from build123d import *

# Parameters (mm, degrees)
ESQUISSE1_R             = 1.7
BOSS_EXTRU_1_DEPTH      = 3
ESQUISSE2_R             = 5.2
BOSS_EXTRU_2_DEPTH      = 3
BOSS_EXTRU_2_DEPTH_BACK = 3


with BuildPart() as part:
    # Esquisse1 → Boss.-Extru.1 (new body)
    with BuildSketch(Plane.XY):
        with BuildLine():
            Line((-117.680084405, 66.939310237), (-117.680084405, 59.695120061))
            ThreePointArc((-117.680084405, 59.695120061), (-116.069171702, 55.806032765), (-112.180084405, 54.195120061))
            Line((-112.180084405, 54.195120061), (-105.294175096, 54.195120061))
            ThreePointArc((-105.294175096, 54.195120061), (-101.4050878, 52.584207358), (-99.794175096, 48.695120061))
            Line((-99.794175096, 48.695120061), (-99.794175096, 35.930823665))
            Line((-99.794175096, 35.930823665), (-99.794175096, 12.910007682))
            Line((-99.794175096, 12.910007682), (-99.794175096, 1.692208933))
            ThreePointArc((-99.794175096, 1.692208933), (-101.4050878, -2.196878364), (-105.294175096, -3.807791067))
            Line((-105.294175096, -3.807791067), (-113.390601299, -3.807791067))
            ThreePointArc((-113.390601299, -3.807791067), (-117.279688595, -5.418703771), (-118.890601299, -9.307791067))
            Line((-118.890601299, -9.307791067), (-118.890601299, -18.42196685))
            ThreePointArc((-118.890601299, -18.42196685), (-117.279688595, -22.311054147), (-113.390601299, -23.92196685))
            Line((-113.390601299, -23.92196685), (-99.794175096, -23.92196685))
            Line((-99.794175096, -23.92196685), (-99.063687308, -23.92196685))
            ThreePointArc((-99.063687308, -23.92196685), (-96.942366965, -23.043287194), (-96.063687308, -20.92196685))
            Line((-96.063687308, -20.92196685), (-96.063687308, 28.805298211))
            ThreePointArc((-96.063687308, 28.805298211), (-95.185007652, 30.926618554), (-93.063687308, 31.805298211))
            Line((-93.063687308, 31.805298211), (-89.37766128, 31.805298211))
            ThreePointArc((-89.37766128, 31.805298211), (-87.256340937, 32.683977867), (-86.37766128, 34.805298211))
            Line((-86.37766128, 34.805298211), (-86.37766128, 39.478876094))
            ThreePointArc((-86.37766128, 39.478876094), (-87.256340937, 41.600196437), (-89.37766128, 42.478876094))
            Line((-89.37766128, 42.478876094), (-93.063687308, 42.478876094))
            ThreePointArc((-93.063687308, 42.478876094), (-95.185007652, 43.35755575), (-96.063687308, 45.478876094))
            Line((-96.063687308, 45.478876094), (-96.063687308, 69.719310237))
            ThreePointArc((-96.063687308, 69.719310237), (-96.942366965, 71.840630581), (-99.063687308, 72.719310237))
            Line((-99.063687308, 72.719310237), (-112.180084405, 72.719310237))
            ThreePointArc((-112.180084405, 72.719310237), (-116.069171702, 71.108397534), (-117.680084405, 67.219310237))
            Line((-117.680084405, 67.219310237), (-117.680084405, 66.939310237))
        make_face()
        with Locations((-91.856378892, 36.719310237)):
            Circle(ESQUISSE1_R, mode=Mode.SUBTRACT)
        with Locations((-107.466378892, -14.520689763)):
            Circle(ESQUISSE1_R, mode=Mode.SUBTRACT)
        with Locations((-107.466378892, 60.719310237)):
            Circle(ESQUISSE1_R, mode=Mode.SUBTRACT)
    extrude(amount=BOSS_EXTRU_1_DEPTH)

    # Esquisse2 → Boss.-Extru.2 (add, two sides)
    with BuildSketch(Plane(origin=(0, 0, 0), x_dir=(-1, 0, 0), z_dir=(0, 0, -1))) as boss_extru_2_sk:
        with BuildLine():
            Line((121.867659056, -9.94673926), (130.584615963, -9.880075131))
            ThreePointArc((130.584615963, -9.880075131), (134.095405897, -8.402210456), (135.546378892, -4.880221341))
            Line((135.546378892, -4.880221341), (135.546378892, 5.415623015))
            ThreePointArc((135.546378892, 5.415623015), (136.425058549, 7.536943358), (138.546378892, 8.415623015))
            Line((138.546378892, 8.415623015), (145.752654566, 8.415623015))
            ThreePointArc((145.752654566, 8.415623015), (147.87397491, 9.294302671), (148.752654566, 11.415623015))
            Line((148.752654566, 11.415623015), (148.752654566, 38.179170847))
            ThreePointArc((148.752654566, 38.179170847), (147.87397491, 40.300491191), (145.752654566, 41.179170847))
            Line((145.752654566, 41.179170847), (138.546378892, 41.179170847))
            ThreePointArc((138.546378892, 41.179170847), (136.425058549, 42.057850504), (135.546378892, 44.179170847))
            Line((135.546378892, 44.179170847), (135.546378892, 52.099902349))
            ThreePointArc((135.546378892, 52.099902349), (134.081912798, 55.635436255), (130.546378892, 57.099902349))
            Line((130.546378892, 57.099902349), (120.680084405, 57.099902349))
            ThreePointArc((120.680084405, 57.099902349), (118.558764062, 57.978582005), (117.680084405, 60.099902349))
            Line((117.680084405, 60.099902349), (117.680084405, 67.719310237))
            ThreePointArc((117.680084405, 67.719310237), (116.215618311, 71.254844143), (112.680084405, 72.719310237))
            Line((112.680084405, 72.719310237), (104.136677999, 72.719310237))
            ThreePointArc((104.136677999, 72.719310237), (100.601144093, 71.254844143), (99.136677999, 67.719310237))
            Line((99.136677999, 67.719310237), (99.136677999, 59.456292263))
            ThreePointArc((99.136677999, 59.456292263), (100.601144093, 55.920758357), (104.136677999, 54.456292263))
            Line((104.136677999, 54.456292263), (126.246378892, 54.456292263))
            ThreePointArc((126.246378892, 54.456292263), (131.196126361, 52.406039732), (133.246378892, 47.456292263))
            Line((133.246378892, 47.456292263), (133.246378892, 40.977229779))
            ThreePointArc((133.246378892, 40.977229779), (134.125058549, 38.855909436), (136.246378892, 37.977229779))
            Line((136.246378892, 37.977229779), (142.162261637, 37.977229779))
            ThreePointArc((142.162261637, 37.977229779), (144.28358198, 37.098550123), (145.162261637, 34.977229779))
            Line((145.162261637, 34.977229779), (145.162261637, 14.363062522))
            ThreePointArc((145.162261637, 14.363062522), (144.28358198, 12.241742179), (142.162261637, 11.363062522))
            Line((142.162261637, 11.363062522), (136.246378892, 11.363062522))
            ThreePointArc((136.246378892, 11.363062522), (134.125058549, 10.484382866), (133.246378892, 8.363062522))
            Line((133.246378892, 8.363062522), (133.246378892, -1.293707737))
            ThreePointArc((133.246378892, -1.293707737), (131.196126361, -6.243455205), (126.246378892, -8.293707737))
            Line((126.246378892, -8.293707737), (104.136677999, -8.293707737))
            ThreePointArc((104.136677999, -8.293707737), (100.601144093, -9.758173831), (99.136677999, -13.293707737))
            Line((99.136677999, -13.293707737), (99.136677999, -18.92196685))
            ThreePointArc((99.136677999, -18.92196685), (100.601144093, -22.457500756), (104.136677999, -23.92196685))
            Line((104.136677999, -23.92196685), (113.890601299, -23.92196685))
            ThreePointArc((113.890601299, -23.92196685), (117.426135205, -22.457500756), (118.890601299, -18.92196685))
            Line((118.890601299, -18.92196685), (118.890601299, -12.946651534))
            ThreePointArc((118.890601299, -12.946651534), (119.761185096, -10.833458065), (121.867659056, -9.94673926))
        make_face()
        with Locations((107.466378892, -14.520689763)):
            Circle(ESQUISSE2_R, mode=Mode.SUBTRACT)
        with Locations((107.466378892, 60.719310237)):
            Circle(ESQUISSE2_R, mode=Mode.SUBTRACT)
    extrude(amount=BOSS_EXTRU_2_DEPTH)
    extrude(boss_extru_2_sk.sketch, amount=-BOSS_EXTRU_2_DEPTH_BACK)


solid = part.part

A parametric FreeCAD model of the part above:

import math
import FreeCAD as App
import Part
import Sketcher

doc = App.newDocument("Part")
body = doc.addObject("PartDesign::Body", "Body")

# Sketch on XY plane
sketch1 = doc.addObject("Sketcher::SketchObject", "Sketch")
body.addObject(sketch1)
sketch1.AttachmentSupport = (doc.XY_Plane, [""])
sketch1.MapMode = "FlatFace"
sketch1.addGeometry([
    Part.ArcOfCircle(Part.Circle(App.Vector(-112.2, 59.7, 0), App.Vector(0, 0, 1), 5.5), math.radians(180), math.radians(270)),  # 0
    Part.LineSegment(App.Vector(-112.2, 54.2, 0), App.Vector(-105.3, 54.2, 0)),  # 1
    Part.ArcOfCircle(Part.Circle(App.Vector(-105.3, 48.7, 0), App.Vector(0, 0, 1), 5.5), math.radians(0), math.radians(90)),  # 2
    Part.LineSegment(App.Vector(-99.8, 48.7, 0), App.Vector(-99.8, 1.7, 0)),  # 3
    Part.ArcOfCircle(Part.Circle(App.Vector(-105.3, 1.7, 0), App.Vector(0, 0, 1), 5.5), math.radians(-90), math.radians(0)),  # 4
    Part.LineSegment(App.Vector(-105.3, -3.8, 0), App.Vector(-113.4, -3.8, 0)),  # 5
    Part.ArcOfCircle(Part.Circle(App.Vector(-113.4, -9.3, 0), App.Vector(0, 0, 1), 5.5), math.radians(90), math.radians(180)),  # 6
    Part.LineSegment(App.Vector(-118.9, -9.3, 0), App.Vector(-118.9, -18.4, 0)),  # 7
    Part.ArcOfCircle(Part.Circle(App.Vector(-113.4, -18.4, 0), App.Vector(0, 0, 1), 5.5), math.radians(180), math.radians(270)),  # 8
    Part.LineSegment(App.Vector(-113.4, -23.9, 0), App.Vector(-99.1, -23.9, 0)),  # 9
    Part.ArcOfCircle(Part.Circle(App.Vector(-99.1, -20.9, 0), App.Vector(0, 0, 1), 3), math.radians(-90), math.radians(0)),  # 10
    Part.LineSegment(App.Vector(-96.1, -20.9, 0), App.Vector(-96.1, 28.8, 0)),  # 11
    Part.ArcOfCircle(Part.Circle(App.Vector(-93.1, 28.8, 0), App.Vector(0, 0, 1), 3), math.radians(90), math.radians(180)),  # 12
    Part.LineSegment(App.Vector(-93.1, 31.8, 0), App.Vector(-89.4, 31.8, 0)),  # 13
    Part.ArcOfCircle(Part.Circle(App.Vector(-89.4, 34.8, 0), App.Vector(0, 0, 1), 3), math.radians(-90), math.radians(0)),  # 14
    Part.LineSegment(App.Vector(-86.4, 34.8, 0), App.Vector(-86.4, 39.5, 0)),  # 15
    Part.ArcOfCircle(Part.Circle(App.Vector(-89.4, 39.5, 0), App.Vector(0, 0, 1), 3), math.radians(0), math.radians(90)),  # 16
    Part.LineSegment(App.Vector(-89.4, 42.5, 0), App.Vector(-93.1, 42.5, 0)),  # 17
    Part.ArcOfCircle(Part.Circle(App.Vector(-93.1, 45.5, 0), App.Vector(0, 0, 1), 3), math.radians(180), math.radians(270)),  # 18
    Part.LineSegment(App.Vector(-96.1, 45.5, 0), App.Vector(-96.1, 69.7, 0)),  # 19
    Part.ArcOfCircle(Part.Circle(App.Vector(-99.1, 69.7, 0), App.Vector(0, 0, 1), 3), math.radians(0), math.radians(90)),  # 20
    Part.LineSegment(App.Vector(-99.1, 72.7, 0), App.Vector(-112.2, 72.7, 0)),  # 21
    Part.ArcOfCircle(Part.Circle(App.Vector(-112.2, 67.2, 0), App.Vector(0, 0, 1), 5.5), math.radians(90), math.radians(180)),  # 22
    Part.LineSegment(App.Vector(-117.7, 67.2, 0), App.Vector(-117.7, 59.7, 0)),  # 23
    Part.Circle(App.Vector(-107.5, -14.5, 0), App.Vector(0, 0, 1), 1.7),  # 24
    Part.Circle(App.Vector(-107.5, 60.7, 0), App.Vector(0, 0, 1), 1.7),  # 25
    Part.Circle(App.Vector(-91.9, 36.7, 0), App.Vector(0, 0, 1), 1.7),  # 26
], False)
sketch1.addConstraint([
    Sketcher.Constraint("Tangent", 0, 2, 1, 1),
    Sketcher.Constraint("Tangent", 1, 2, 2, 2),
    Sketcher.Constraint("Tangent", 2, 1, 3, 1),
    Sketcher.Constraint("Tangent", 3, 2, 4, 2),
    Sketcher.Constraint("Tangent", 4, 1, 5, 1),
    Sketcher.Constraint("Tangent", 5, 2, 6, 1),
    Sketcher.Constraint("Tangent", 6, 2, 7, 1),
    Sketcher.Constraint("Tangent", 7, 2, 8, 1),
    Sketcher.Constraint("Tangent", 8, 2, 9, 1),
    Sketcher.Constraint("Tangent", 9, 2, 10, 1),
    Sketcher.Constraint("Tangent", 10, 2, 11, 1),
    Sketcher.Constraint("Tangent", 11, 2, 12, 2),
    Sketcher.Constraint("Tangent", 12, 1, 13, 1),
    Sketcher.Constraint("Tangent", 13, 2, 14, 1),
    Sketcher.Constraint("Tangent", 14, 2, 15, 1),
    Sketcher.Constraint("Tangent", 15, 2, 16, 1),
    Sketcher.Constraint("Tangent", 16, 2, 17, 1),
    Sketcher.Constraint("Tangent", 17, 2, 18, 2),
    Sketcher.Constraint("Tangent", 18, 1, 19, 1),
    Sketcher.Constraint("Tangent", 19, 2, 20, 1),
    Sketcher.Constraint("Tangent", 20, 2, 21, 1),
    Sketcher.Constraint("Tangent", 21, 2, 22, 1),
    Sketcher.Constraint("Tangent", 22, 2, 23, 1),
    Sketcher.Constraint("Tangent", 23, 2, 0, 1),
    Sketcher.Constraint("Horizontal", 1),
    Sketcher.Constraint("Vertical", 3),
    Sketcher.Constraint("Horizontal", 5),
    Sketcher.Constraint("Vertical", 7),
    Sketcher.Constraint("Horizontal", 9),
    Sketcher.Constraint("Vertical", 11),
    Sketcher.Constraint("Horizontal", 13),
    Sketcher.Constraint("Vertical", 15),
    Sketcher.Constraint("Horizontal", 17),
    Sketcher.Constraint("Vertical", 19),
    Sketcher.Constraint("Horizontal", 21),
    Sketcher.Constraint("Vertical", 23),
    Sketcher.Constraint("Equal", 0, 2),
    Sketcher.Constraint("Equal", 2, 4),
    Sketcher.Constraint("Equal", 4, 6),
    Sketcher.Constraint("Equal", 6, 8),
    Sketcher.Constraint("Equal", 10, 12),
    Sketcher.Constraint("Equal", 12, 14),
    Sketcher.Constraint("Equal", 14, 16),
    Sketcher.Constraint("Equal", 16, 18),
    Sketcher.Constraint("Equal", 18, 20),
    Sketcher.Constraint("Equal", 8, 22),
    Sketcher.Constraint("Equal", 24, 25),
    Sketcher.Constraint("Equal", 25, 26),
    Sketcher.Constraint("Vertical", 12, 3, 18, 3),
    Sketcher.Constraint("Vertical", 24, 3, 25, 3),
    Sketcher.Constraint("Radius", 10, 3.0),
    Sketcher.Constraint("Diameter", 24, 3.4),
    Sketcher.Constraint("Radius", 0, 5.5),
    Sketcher.Constraint("DistanceY", 25, 3, 20, 3, 9.0),
    Sketcher.Constraint("DistanceX", 1, 1, 1, 2, 6.885909),
    Sketcher.Constraint("DistanceY", 3, 2, 3, 1, 47.002911),
    Sketcher.Constraint("DistanceY", 23, 2, 23, 1, 7.52419),
    Sketcher.Constraint("DistanceX", 6, 3, -1, 1, 113.390601),
    Sketcher.Constraint("DistanceY", -1, 1, 12, 3, 28.805298),
    Sketcher.Constraint("DistanceY", 24, 3, 6, 3, 5.212899),
    Sketcher.Constraint("DistanceX", 5, 2, 5, 1, 8.096426),
    Sketcher.Constraint("DistanceX", 9, 1, 9, 2, 14.326914),
    Sketcher.Constraint("DistanceX", 13, 1, 13, 2, 3.686026),
    Sketcher.Constraint("DistanceY", 7, 2, 7, 1, 9.114176),
    Sketcher.Constraint("DistanceY", 11, 1, 11, 2, 49.727265),
    Sketcher.Constraint("DistanceY", 15, 1, 15, 2, 4.673578),
    Sketcher.Constraint("DistanceX", 24, 3, -1, 1, 107.466379),
    Sketcher.Constraint("DistanceX", 26, 3, -1, 1, 91.856379),
    Sketcher.Constraint("DistanceY", -1, 1, 26, 3, 36.71931),
])
pad1 = doc.addObject("PartDesign::Pad", "Pad")
body.addObject(pad1)
pad1.Profile = sketch1
pad1.Length = 3

# Sketch on XY plane
sketch2 = doc.addObject("Sketcher::SketchObject", "Sketch001")
body.addObject(sketch2)
sketch2.AttachmentSupport = (doc.XY_Plane, [""])
sketch2.MapMode = "FlatFace"
sketch2.addGeometry([
    Part.LineSegment(App.Vector(-121.9, -9.9, 0), App.Vector(-130.6, -9.9, 0)),  # 0
    Part.ArcOfCircle(Part.Circle(App.Vector(-130.5, -4.9, 0), App.Vector(0, 0, 1), 5), math.radians(180), math.radians(270)),  # 1
    Part.LineSegment(App.Vector(-135.5, -4.9, 0), App.Vector(-135.5, 5.4, 0)),  # 2
    Part.ArcOfCircle(Part.Circle(App.Vector(-138.5, 5.4, 0), App.Vector(0, 0, 1), 3), math.radians(0), math.radians(90)),  # 3
    Part.LineSegment(App.Vector(-138.5, 8.4, 0), App.Vector(-145.8, 8.4, 0)),  # 4
    Part.ArcOfCircle(Part.Circle(App.Vector(-145.8, 11.4, 0), App.Vector(0, 0, 1), 3), math.radians(180), math.radians(270)),  # 5
    Part.LineSegment(App.Vector(-148.8, 11.4, 0), App.Vector(-148.8, 38.2, 0)),  # 6
    Part.ArcOfCircle(Part.Circle(App.Vector(-145.8, 38.2, 0), App.Vector(0, 0, 1), 3), math.radians(90), math.radians(180)),  # 7
    Part.LineSegment(App.Vector(-145.8, 41.2, 0), App.Vector(-138.5, 41.2, 0)),  # 8
    Part.ArcOfCircle(Part.Circle(App.Vector(-138.5, 44.2, 0), App.Vector(0, 0, 1), 3), math.radians(-90), math.radians(0)),  # 9
    Part.LineSegment(App.Vector(-135.5, 44.2, 0), App.Vector(-135.5, 52.1, 0)),  # 10
    Part.ArcOfCircle(Part.Circle(App.Vector(-130.5, 52.1, 0), App.Vector(0, 0, 1), 5), math.radians(90), math.radians(180)),  # 11
    Part.LineSegment(App.Vector(-130.5, 57.1, 0), App.Vector(-120.7, 57.1, 0)),  # 12
    Part.ArcOfCircle(Part.Circle(App.Vector(-120.7, 60.1, 0), App.Vector(0, 0, 1), 3), math.radians(-90), math.radians(0)),  # 13
    Part.LineSegment(App.Vector(-117.7, 60.1, 0), App.Vector(-117.7, 67.7, 0)),  # 14
    Part.ArcOfCircle(Part.Circle(App.Vector(-112.7, 67.7, 0), App.Vector(0, 0, 1), 5), math.radians(90), math.radians(180)),  # 15
    Part.LineSegment(App.Vector(-112.7, 72.7, 0), App.Vector(-104.1, 72.7, 0)),  # 16
    Part.ArcOfCircle(Part.Circle(App.Vector(-104.1, 67.7, 0), App.Vector(0, 0, 1), 5), math.radians(0), math.radians(90)),  # 17
    Part.LineSegment(App.Vector(-99.1, 67.7, 0), App.Vector(-99.1, 59.5, 0)),  # 18
    Part.ArcOfCircle(Part.Circle(App.Vector(-104.1, 59.5, 0), App.Vector(0, 0, 1), 5), math.radians(-90), math.radians(0)),  # 19
    Part.LineSegment(App.Vector(-104.1, 54.5, 0), App.Vector(-126.2, 54.5, 0)),  # 20
    Part.ArcOfCircle(Part.Circle(App.Vector(-126.2, 47.5, 0), App.Vector(0, 0, 1), 7), math.radians(90), math.radians(180)),  # 21
    Part.LineSegment(App.Vector(-133.2, 47.5, 0), App.Vector(-133.2, 41, 0)),  # 22
    Part.ArcOfCircle(Part.Circle(App.Vector(-136.2, 41, 0), App.Vector(0, 0, 1), 3), math.radians(-90), math.radians(0)),  # 23
    Part.LineSegment(App.Vector(-136.2, 38, 0), App.Vector(-142.2, 38, 0)),  # 24
    Part.ArcOfCircle(Part.Circle(App.Vector(-142.2, 35, 0), App.Vector(0, 0, 1), 3), math.radians(90), math.radians(180)),  # 25
    Part.LineSegment(App.Vector(-145.2, 35, 0), App.Vector(-145.2, 14.4, 0)),  # 26
    Part.ArcOfCircle(Part.Circle(App.Vector(-142.2, 14.4, 0), App.Vector(0, 0, 1), 3), math.radians(-180), math.radians(-90)),  # 27
    Part.LineSegment(App.Vector(-142.2, 11.4, 0), App.Vector(-136.2, 11.4, 0)),  # 28
    Part.ArcOfCircle(Part.Circle(App.Vector(-136.2, 8.4, 0), App.Vector(0, 0, 1), 3), math.radians(0), math.radians(90)),  # 29
    Part.LineSegment(App.Vector(-133.2, 8.4, 0), App.Vector(-133.2, -1.3, 0)),  # 30
    Part.ArcOfCircle(Part.Circle(App.Vector(-126.2, -1.3, 0), App.Vector(0, 0, 1), 7), math.radians(180), math.radians(270)),  # 31
    Part.LineSegment(App.Vector(-126.2, -8.3, 0), App.Vector(-104.1, -8.3, 0)),  # 32
    Part.ArcOfCircle(Part.Circle(App.Vector(-104.1, -13.3, 0), App.Vector(0, 0, 1), 5), math.radians(0), math.radians(90)),  # 33
    Part.LineSegment(App.Vector(-99.1, -13.3, 0), App.Vector(-99.1, -18.9, 0)),  # 34
    Part.ArcOfCircle(Part.Circle(App.Vector(-104.1, -18.9, 0), App.Vector(0, 0, 1), 5), math.radians(-90), math.radians(0)),  # 35
    Part.LineSegment(App.Vector(-104.1, -23.9, 0), App.Vector(-113.9, -23.9, 0)),  # 36
    Part.ArcOfCircle(Part.Circle(App.Vector(-113.9, -18.9, 0), App.Vector(0, 0, 1), 5), math.radians(180), math.radians(270)),  # 37
    Part.LineSegment(App.Vector(-118.9, -18.9, 0), App.Vector(-118.9, -12.9, 0)),  # 38
    Part.ArcOfCircle(Part.Circle(App.Vector(-121.9, -12.9, 0), App.Vector(0, 0, 1), 3), math.radians(0), math.radians(90)),  # 39
    Part.Circle(App.Vector(-107.5, -14.5, 0), App.Vector(0, 0, 1), 5.2),  # 40
    Part.Circle(App.Vector(-107.5, 60.7, 0), App.Vector(0, 0, 1), 5.2),  # 41
], False)
sketch2.addConstraint([
    Sketcher.Constraint("Tangent", 0, 2, 1, 2),
    Sketcher.Constraint("Tangent", 1, 1, 2, 1),
    Sketcher.Constraint("Tangent", 2, 2, 3, 1),
    Sketcher.Constraint("Tangent", 3, 2, 4, 1),
    Sketcher.Constraint("Tangent", 4, 2, 5, 2),
    Sketcher.Constraint("Tangent", 5, 1, 6, 1),
    Sketcher.Constraint("Tangent", 6, 2, 7, 2),
    Sketcher.Constraint("Tangent", 7, 1, 8, 1),
    Sketcher.Constraint("Tangent", 8, 2, 9, 1),
    Sketcher.Constraint("Tangent", 9, 2, 10, 1),
    Sketcher.Constraint("Tangent", 10, 2, 11, 2),
    Sketcher.Constraint("Tangent", 11, 1, 12, 1),
    Sketcher.Constraint("Tangent", 12, 2, 13, 1),
    Sketcher.Constraint("Tangent", 13, 2, 14, 1),
    Sketcher.Constraint("Tangent", 14, 2, 15, 2),
    Sketcher.Constraint("Tangent", 15, 1, 16, 1),
    Sketcher.Constraint("Tangent", 16, 2, 17, 2),
    Sketcher.Constraint("Tangent", 17, 1, 18, 1),
    Sketcher.Constraint("Tangent", 18, 2, 19, 2),
    Sketcher.Constraint("Tangent", 19, 1, 20, 1),
    Sketcher.Constraint("Tangent", 20, 2, 21, 1),
    Sketcher.Constraint("Tangent", 21, 2, 22, 1),
    Sketcher.Constraint("Tangent", 22, 2, 23, 2),
    Sketcher.Constraint("Tangent", 23, 1, 24, 1),
    Sketcher.Constraint("Tangent", 24, 2, 25, 1),
    Sketcher.Constraint("Tangent", 25, 2, 26, 1),
    Sketcher.Constraint("Tangent", 26, 2, 27, 1),
    Sketcher.Constraint("Tangent", 27, 2, 28, 1),
    Sketcher.Constraint("Tangent", 28, 2, 29, 2),
    Sketcher.Constraint("Tangent", 29, 1, 30, 1),
    Sketcher.Constraint("Tangent", 30, 2, 31, 1),
    Sketcher.Constraint("Tangent", 31, 2, 32, 1),
    Sketcher.Constraint("Tangent", 32, 2, 33, 2),
    Sketcher.Constraint("Tangent", 33, 1, 34, 1),
    Sketcher.Constraint("Tangent", 34, 2, 35, 2),
    Sketcher.Constraint("Tangent", 35, 1, 36, 1),
    Sketcher.Constraint("Tangent", 36, 2, 37, 2),
    Sketcher.Constraint("Tangent", 37, 1, 38, 1),
    Sketcher.Constraint("Tangent", 38, 2, 39, 1),
    Sketcher.Constraint("Tangent", 39, 2, 0, 1),
    Sketcher.Constraint("Vertical", 2),
    Sketcher.Constraint("Horizontal", 4),
    Sketcher.Constraint("Vertical", 6),
    Sketcher.Constraint("Horizontal", 8),
    Sketcher.Constraint("Vertical", 10),
    Sketcher.Constraint("Horizontal", 12),
    Sketcher.Constraint("Vertical", 14),
    Sketcher.Constraint("Horizontal", 16),
    Sketcher.Constraint("Vertical", 18),
    Sketcher.Constraint("Horizontal", 20),
    Sketcher.Constraint("Vertical", 22),
    Sketcher.Constraint("Horizontal", 24),
    Sketcher.Constraint("Vertical", 26),
    Sketcher.Constraint("Horizontal", 28),
    Sketcher.Constraint("Vertical", 30),
    Sketcher.Constraint("Horizontal", 32),
    Sketcher.Constraint("Vertical", 34),
    Sketcher.Constraint("Horizontal", 36),
    Sketcher.Constraint("Vertical", 38),
    Sketcher.Constraint("Equal", 3, 5),
    Sketcher.Constraint("Equal", 5, 7),
    Sketcher.Constraint("Equal", 7, 9),
    Sketcher.Constraint("Equal", 1, 11),
    Sketcher.Constraint("Equal", 9, 13),
    Sketcher.Constraint("Equal", 11, 15),
    Sketcher.Constraint("Equal", 15, 17),
    Sketcher.Constraint("Equal", 17, 19),
    Sketcher.Constraint("Equal", 13, 23),
    Sketcher.Constraint("Equal", 23, 25),
    Sketcher.Constraint("Equal", 25, 27),
    Sketcher.Constraint("Equal", 27, 29),
    Sketcher.Constraint("Equal", 21, 31),
    Sketcher.Constraint("Equal", 19, 33),
    Sketcher.Constraint("Equal", 33, 35),
    Sketcher.Constraint("Equal", 35, 37),
    Sketcher.Constraint("Equal", 29, 39),
    Sketcher.Constraint("Equal", 40, 41),
    Sketcher.Constraint("Vertical", 3, 3, 9, 3),
    Sketcher.Constraint("Vertical", 23, 3, 29, 3),
    Sketcher.Constraint("Vertical", 19, 3, 33, 3),
    Sketcher.Constraint("Vertical", 40, 3, 41, 3),
    Sketcher.Constraint("Radius", 1, 5.0),
    Sketcher.Constraint("Radius", 3, 3.0),
    Sketcher.Constraint("Radius", 21, 7.0),
    Sketcher.Constraint("Diameter", 40, 10.4),
    Sketcher.Constraint("DistanceX", 20, 2, 20, 1, 22.109701),
    Sketcher.Constraint("DistanceY", 10, 1, 10, 2, 7.920732),
    Sketcher.Constraint("DistanceY", 30, 2, 30, 1, 9.65677),
    Sketcher.Constraint("DistanceY", 34, 2, 34, 1, 5.628259),
    Sketcher.Constraint("DistanceX", 37, 3, -1, 1, 113.890601),
    Sketcher.Constraint("Distance", 0, 8.717212),
    Sketcher.Constraint("DistanceX", 4, 2, 4, 1, 7.206276),
    Sketcher.Constraint("DistanceX", 12, 1, 12, 2, 9.866294),
    Sketcher.Constraint("DistanceX", 16, 1, 16, 2, 8.543406),
    Sketcher.Constraint("DistanceX", 24, 2, 24, 1, 5.915883),
    Sketcher.Constraint("DistanceX", 36, 2, 36, 1, 9.753923),
    Sketcher.Constraint("DistanceY", 2, 1, 2, 2, 10.295844),
    Sketcher.Constraint("DistanceY", 6, 1, 6, 2, 26.763548),
    Sketcher.Constraint("DistanceY", 14, 1, 14, 2, 7.619408),
    Sketcher.Constraint("DistanceY", 18, 2, 18, 1, 8.263018),
    Sketcher.Constraint("DistanceY", 22, 2, 22, 1, 6.479062),
    Sketcher.Constraint("DistanceY", 26, 2, 26, 1, 20.614167),
    Sketcher.Constraint("DistanceY", 1, 3, -1, 1, 4.880221),
    Sketcher.Constraint("DistanceX", 40, 3, -1, 1, 107.466379),
    Sketcher.Constraint("DistanceY", 40, 3, -1, 1, 14.52069),
    Sketcher.Constraint("DistanceY", -1, 1, 41, 3, 60.71931),
])
pad2 = doc.addObject("PartDesign::Pad", "Pad001")
body.addObject(pad2)
pad2.Profile = sketch2
pad2.Type = "TwoLengths"
pad2.Length = 3
pad2.Length2 = 3
pad2.Reversed = True

doc.recompute()
